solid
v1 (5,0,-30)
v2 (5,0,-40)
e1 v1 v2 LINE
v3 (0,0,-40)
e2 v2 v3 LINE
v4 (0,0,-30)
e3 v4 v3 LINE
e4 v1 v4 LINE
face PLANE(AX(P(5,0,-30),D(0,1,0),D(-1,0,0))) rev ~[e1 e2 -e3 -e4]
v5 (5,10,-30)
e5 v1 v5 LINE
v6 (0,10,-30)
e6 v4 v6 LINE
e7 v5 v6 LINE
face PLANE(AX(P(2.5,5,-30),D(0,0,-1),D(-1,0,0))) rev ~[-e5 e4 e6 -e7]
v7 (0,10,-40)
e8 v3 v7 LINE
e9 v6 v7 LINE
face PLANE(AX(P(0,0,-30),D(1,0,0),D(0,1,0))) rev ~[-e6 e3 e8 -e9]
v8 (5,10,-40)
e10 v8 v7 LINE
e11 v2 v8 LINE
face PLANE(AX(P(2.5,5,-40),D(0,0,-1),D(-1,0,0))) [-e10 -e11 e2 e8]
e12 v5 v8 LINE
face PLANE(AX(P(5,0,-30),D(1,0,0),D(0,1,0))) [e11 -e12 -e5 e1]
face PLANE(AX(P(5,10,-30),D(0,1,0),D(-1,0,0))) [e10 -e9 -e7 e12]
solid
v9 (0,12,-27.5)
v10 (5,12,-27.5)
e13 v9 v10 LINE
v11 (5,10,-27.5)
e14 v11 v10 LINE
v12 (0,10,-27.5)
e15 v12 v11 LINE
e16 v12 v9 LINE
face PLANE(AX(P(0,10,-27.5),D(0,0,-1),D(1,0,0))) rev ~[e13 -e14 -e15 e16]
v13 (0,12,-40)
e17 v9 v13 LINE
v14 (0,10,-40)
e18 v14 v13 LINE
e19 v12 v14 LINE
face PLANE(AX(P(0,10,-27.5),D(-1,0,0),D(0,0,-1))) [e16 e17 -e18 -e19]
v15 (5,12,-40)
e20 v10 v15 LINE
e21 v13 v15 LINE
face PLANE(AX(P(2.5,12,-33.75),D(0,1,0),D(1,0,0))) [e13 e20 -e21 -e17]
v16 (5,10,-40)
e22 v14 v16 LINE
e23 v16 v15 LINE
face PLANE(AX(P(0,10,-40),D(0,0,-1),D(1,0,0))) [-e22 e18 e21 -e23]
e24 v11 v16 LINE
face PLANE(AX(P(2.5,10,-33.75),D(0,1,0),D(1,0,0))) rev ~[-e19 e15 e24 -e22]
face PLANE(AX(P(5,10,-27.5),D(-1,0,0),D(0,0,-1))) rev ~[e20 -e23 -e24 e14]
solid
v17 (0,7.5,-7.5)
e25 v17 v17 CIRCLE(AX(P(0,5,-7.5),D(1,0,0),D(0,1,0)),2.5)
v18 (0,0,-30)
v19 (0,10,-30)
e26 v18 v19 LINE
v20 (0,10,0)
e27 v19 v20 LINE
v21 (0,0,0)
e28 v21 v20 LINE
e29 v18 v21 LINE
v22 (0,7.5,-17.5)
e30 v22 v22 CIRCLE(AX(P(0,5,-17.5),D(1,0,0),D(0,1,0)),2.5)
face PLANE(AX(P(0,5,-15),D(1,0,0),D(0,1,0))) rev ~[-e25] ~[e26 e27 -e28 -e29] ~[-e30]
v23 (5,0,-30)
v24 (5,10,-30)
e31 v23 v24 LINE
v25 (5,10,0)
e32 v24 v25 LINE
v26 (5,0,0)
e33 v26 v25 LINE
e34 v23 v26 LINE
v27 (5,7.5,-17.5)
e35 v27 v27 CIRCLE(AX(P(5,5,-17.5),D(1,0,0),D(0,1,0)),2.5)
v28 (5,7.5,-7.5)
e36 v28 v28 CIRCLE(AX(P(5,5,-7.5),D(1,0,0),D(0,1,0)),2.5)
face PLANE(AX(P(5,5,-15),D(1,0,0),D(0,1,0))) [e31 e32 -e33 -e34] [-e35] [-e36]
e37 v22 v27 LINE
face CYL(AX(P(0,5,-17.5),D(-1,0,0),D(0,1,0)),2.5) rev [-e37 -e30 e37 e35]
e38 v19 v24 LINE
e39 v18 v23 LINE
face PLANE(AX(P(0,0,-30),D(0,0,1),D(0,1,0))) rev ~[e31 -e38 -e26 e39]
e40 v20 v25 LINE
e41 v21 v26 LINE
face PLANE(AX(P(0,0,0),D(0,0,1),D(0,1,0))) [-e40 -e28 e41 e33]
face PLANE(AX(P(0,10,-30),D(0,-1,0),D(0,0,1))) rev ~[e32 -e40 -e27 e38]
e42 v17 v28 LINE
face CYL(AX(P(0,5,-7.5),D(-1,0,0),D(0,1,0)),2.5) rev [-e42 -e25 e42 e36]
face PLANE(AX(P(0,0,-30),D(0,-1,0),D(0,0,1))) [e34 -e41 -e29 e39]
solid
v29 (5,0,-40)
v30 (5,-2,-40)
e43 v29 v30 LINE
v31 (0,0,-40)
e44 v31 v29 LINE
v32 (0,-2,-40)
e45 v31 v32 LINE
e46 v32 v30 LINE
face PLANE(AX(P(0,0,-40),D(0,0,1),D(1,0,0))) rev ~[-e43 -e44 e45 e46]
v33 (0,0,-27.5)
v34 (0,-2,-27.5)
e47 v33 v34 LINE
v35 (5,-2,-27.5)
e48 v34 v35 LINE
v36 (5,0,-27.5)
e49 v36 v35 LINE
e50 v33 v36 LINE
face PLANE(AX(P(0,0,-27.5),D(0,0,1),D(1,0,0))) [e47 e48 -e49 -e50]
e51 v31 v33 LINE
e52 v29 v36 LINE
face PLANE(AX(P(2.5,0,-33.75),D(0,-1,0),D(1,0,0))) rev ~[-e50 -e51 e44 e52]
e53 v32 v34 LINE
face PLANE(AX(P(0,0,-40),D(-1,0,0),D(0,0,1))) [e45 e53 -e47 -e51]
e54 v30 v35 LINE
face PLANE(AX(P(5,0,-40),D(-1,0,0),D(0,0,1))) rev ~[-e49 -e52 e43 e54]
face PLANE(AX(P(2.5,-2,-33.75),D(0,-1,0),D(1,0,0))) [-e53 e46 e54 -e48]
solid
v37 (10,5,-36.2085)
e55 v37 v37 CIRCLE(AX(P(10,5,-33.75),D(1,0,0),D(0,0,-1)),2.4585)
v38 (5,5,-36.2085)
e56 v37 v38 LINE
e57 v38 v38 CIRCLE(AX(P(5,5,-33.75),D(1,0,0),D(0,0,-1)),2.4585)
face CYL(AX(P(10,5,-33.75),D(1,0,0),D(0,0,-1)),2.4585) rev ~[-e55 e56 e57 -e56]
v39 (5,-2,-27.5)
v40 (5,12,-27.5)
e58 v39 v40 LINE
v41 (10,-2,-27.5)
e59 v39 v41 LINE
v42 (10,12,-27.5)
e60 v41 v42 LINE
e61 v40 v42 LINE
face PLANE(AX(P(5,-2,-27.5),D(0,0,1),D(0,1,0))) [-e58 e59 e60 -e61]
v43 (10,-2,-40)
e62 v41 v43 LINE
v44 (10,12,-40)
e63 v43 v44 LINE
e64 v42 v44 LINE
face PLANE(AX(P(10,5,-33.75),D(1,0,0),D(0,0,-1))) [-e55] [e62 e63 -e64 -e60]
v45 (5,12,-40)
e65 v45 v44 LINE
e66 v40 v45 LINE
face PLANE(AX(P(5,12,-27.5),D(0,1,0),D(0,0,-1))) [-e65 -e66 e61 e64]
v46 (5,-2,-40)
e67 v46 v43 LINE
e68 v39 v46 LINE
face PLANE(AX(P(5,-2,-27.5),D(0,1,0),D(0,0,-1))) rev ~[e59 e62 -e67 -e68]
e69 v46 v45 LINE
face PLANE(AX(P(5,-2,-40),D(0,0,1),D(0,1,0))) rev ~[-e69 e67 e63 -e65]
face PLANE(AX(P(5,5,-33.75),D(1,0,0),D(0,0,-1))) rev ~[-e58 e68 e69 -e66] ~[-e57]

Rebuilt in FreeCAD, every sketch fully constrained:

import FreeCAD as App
import Part
import Sketcher
Q = App.Units.Quantity

doc = App.newDocument("Part")
body = doc.addObject("PartDesign::Body", "Body")

# Sketch on YZ plane
sketch1 = doc.addObject("Sketcher::SketchObject", "Sketch")
body.addObject(sketch1)
sketch1.AttachmentSupport = (doc.YZ_Plane, [""])
sketch1.MapMode = "FlatFace"
sketch1.addGeometry(Part.LineSegment(App.Vector(0, 0, 0), App.Vector(0, -30, 0)), False)
sketch1.addGeometry(Part.LineSegment(App.Vector(0, -30, 0), App.Vector(10, -30, 0)), False)
sketch1.addGeometry(Part.LineSegment(App.Vector(10, -30, 0), App.Vector(10, 0, 0)), False)
sketch1.addGeometry(Part.LineSegment(App.Vector(10, 0, 0), App.Vector(0, 0, 0)), False)
sketch1.addGeometry(Part.Circle(App.Vector(5, -17.5, 0), App.Vector(0, 0, 1), 2.5), False)
sketch1.addGeometry(Part.Circle(App.Vector(5, -7.5, 0), App.Vector(0, 0, 1), 2.5), False)
sketch1.addConstraint(Sketcher.Constraint("Coincident", 0, 2, 1, 1))
sketch1.addConstraint(Sketcher.Constraint("Coincident", 1, 2, 2, 1))
sketch1.addConstraint(Sketcher.Constraint("Coincident", 2, 2, 3, 1))
sketch1.addConstraint(Sketcher.Constraint("Coincident", 3, 2, 0, 1))
sketch1.addConstraint(Sketcher.Constraint("Vertical", 0))
sketch1.addConstraint(Sketcher.Constraint("Horizontal", 1))
sketch1.addConstraint(Sketcher.Constraint("Vertical", 2))
sketch1.addConstraint(Sketcher.Constraint("Horizontal", 3))
sketch1.addConstraint(Sketcher.Constraint("Coincident", 3, 2, -1, 1))
sketch1.addConstraint(Sketcher.Constraint("Equal", 4, 5))
sketch1.addConstraint(Sketcher.Constraint("Vertical", 4, 3, 5, 3))
sketch1.addConstraint(Sketcher.Constraint("Diameter", 4, Q("5 mm")))
sketch1.addConstraint(Sketcher.Constraint("DistanceX", 1, 1, 1, 2, Q("10 mm")))
sketch1.addConstraint(Sketcher.Constraint("DistanceY", 0, 2, 0, 1, Q("30 mm")))
sketch1.addConstraint(Sketcher.Constraint("DistanceX", -1, 1, 4, 3, Q("5 mm")))
sketch1.addConstraint(Sketcher.Constraint("DistanceY", 4, 3, 5, 3, Q("10 mm")))
sketch1.addConstraint(Sketcher.Constraint("DistanceY", 4, 3, -1, 1, Q("17.5 mm")))
pad1 = doc.addObject("PartDesign::Pad", "Pad")
body.addObject(pad1)
pad1.Profile = sketch1
pad1.Length = 5
body2 = doc.addObject("PartDesign::Body", "Body001")

# Sketch on XY plane
sketch2 = doc.addObject("Sketcher::SketchObject", "Sketch001")
body2.addObject(sketch2)
sketch2.AttachmentSupport = (doc.getObject("XY_Plane001"), [""])
sketch2.MapMode = "FlatFace"
sketch2.AttachmentOffset = App.Placement(App.Vector(0, 0, -30), App.Rotation())
sketch2.addGeometry(Part.LineSegment(App.Vector(5, 10, 0), App.Vector(5, 0, 0)), False)
sketch2.addGeometry(Part.LineSegment(App.Vector(5, 0, 0), App.Vector(0, 0, 0)), False)
sketch2.addGeometry(Part.LineSegment(App.Vector(0, 0, 0), App.Vector(0, 10, 0)), False)
sketch2.addGeometry(Part.LineSegment(App.Vector(0, 10, 0), App.Vector(5, 10, 0)), False)
sketch2.addConstraint(Sketcher.Constraint("Coincident", 0, 2, 1, 1))
sketch2.addConstraint(Sketcher.Constraint("Coincident", 1, 2, 2, 1))
sketch2.addConstraint(Sketcher.Constraint("Coincident", 2, 2, 3, 1))
sketch2.addConstraint(Sketcher.Constraint("Coincident", 3, 2, 0, 1))
sketch2.addConstraint(Sketcher.Constraint("Vertical", 0))
sketch2.addConstraint(Sketcher.Constraint("Horizontal", 1))
sketch2.addConstraint(Sketcher.Constraint("Vertical", 2))
sketch2.addConstraint(Sketcher.Constraint("Horizontal", 3))
sketch2.addConstraint(Sketcher.Constraint("Coincident", 1, 2, -1, 1))
sketch2.addConstraint(Sketcher.Constraint("DistanceX", 1, 2, 1, 1, Q("5 mm")))
sketch2.addConstraint(Sketcher.Constraint("DistanceY", 0, 2, 0, 1, Q("10 mm")))
pad2 = doc.addObject("PartDesign::Pad", "Pad001")
body2.addObject(pad2)
pad2.Profile = sketch2
pad2.Length = 10
pad2.Reversed = True
body3 = doc.addObject("PartDesign::Body", "Body002")

# Sketch on XZ plane
sketch3 = doc.addObject("Sketcher::SketchObject", "Sketch002")
body3.addObject(sketch3)
sketch3.AttachmentSupport = (doc.getObject("XZ_Plane002"), [""])
sketch3.MapMode = "FlatFace"
sketch3.AttachmentOffset = App.Placement(App.Vector(0, 0, -10), App.Rotation())
sketch3.addGeometry(Part.LineSegment(App.Vector(0, -40, 0), App.Vector(0, -28, 0)), False)
sketch3.addGeometry(Part.LineSegment(App.Vector(0, -28, 0), App.Vector(5, -28, 0)), False)
sketch3.addGeometry(Part.LineSegment(App.Vector(5, -28, 0), App.Vector(5, -40, 0)), False)
sketch3.addGeometry(Part.LineSegment(App.Vector(5, -40, 0), App.Vector(0, -40, 0)), False)
sketch3.addConstraint(Sketcher.Constraint("Coincident", 0, 2, 1, 1))
sketch3.addConstraint(Sketcher.Constraint("Coincident", 1, 2, 2, 1))
sketch3.addConstraint(Sketcher.Constraint("Coincident", 2, 2, 3, 1))
sketch3.addConstraint(Sketcher.Constraint("Coincident", 3, 2, 0, 1))
sketch3.addConstraint(Sketcher.Constraint("Vertical", 0))
sketch3.addConstraint(Sketcher.Constraint("Horizontal", 1))
sketch3.addConstraint(Sketcher.Constraint("Vertical", 2))
sketch3.addConstraint(Sketcher.Constraint("Horizontal", 3))
sketch3.addConstraint(Sketcher.Constraint("PointOnObject", 0, 2, -2))
sketch3.addConstraint(Sketcher.Constraint("DistanceX", 1, 1, 1, 2, Q("5 mm")))
sketch3.addConstraint(Sketcher.Constraint("DistanceY", 0, 1, 0, 2, Q("12.5 mm")))
sketch3.addConstraint(Sketcher.Constraint("DistanceY", 2, 2, -1, 1, Q("40 mm")))
pad3 = doc.addObject("PartDesign::Pad", "Pad002")
body3.addObject(pad3)
pad3.Profile = sketch3
pad3.Length = 2
pad3.Reversed = True
body4 = doc.addObject("PartDesign::Body", "Body003")

# Sketch on XZ plane
sketch4 = doc.addObject("Sketcher::SketchObject", "Sketch003")
body4.addObject(sketch4)
sketch4.AttachmentSupport = (doc.getObject("XZ_Plane003"), [""])
sketch4.MapMode = "FlatFace"
sketch4.addGeometry(Part.LineSegment(App.Vector(0, -28, 0), App.Vector(0, -40, 0)), False)
sketch4.addGeometry(Part.LineSegment(App.Vector(0, -40, 0), App.Vector(5, -40, 0)), False)
sketch4.addGeometry(Part.LineSegment(App.Vector(5, -40, 0), App.Vector(5, -28, 0)), False)
sketch4.addGeometry(Part.LineSegment(App.Vector(5, -28, 0), App.Vector(0, -28, 0)), False)
sketch4.addConstraint(Sketcher.Constraint("Coincident", 0, 2, 1, 1))
sketch4.addConstraint(Sketcher.Constraint("Coincident", 1, 2, 2, 1))
sketch4.addConstraint(Sketcher.Constraint("Coincident", 2, 2, 3, 1))
sketch4.addConstraint(Sketcher.Constraint("Coincident", 3, 2, 0, 1))
sketch4.addConstraint(Sketcher.Constraint("Vertical", 0))
sketch4.addConstraint(Sketcher.Constraint("Horizontal", 1))
sketch4.addConstraint(Sketcher.Constraint("Vertical", 2))
sketch4.addConstraint(Sketcher.Constraint("Horizontal", 3))
sketch4.addConstraint(Sketcher.Constraint("PointOnObject", 0, 2, -2))
sketch4.addConstraint(Sketcher.Constraint("DistanceX", 1, 1, 1, 2, Q("5 mm")))
sketch4.addConstraint(Sketcher.Constraint("DistanceY", 0, 2, 0, 1, Q("12.5 mm")))
sketch4.addConstraint(Sketcher.Constraint("DistanceY", 0, 2, -1, 1, Q("40 mm")))
pad4 = doc.addObject("PartDesign::Pad", "Pad003")
body4.addObject(pad4)
pad4.Profile = sketch4
pad4.Length = 2
body5 = doc.addObject("PartDesign::Body", "Body004")

# Sketch on YZ plane
sketch5 = doc.addObject("Sketcher::SketchObject", "Sketch004")
body5.addObject(sketch5)
sketch5.AttachmentSupport = (doc.getObject("YZ_Plane004"), [""])
sketch5.MapMode = "FlatFace"
sketch5.AttachmentOffset = App.Placement(App.Vector(0, 0, 5), App.Rotation())
sketch5.addGeometry(Part.LineSegment(App.Vector(12, -28, 0), App.Vector(-2, -28, 0)), False)
sketch5.addGeometry(Part.LineSegment(App.Vector(-2, -28, 0), App.Vector(-2, -40, 0)), False)
sketch5.addGeometry(Part.LineSegment(App.Vector(-2, -40, 0), App.Vector(12, -40, 0)), False)
sketch5.addGeometry(Part.LineSegment(App.Vector(12, -40, 0), App.Vector(12, -28, 0)), False)
sketch5.addConstraint(Sketcher.Constraint("Coincident", 0, 2, 1, 1))
sketch5.addConstraint(Sketcher.Constraint("Coincident", 1, 2, 2, 1))
sketch5.addConstraint(Sketcher.Constraint("Coincident", 2, 2, 3, 1))
sketch5.addConstraint(Sketcher.Constraint("Coincident", 3, 2, 0, 1))
sketch5.addConstraint(Sketcher.Constraint("Horizontal", 0))
sketch5.addConstraint(Sketcher.Constraint("Vertical", 1))
sketch5.addConstraint(Sketcher.Constraint("Horizontal", 2))
sketch5.addConstraint(Sketcher.Constraint("Vertical", 3))
sketch5.addConstraint(Sketcher.Constraint("DistanceX", 0, 2, 0, 1, Q("14 mm")))
sketch5.addConstraint(Sketcher.Constraint("DistanceY", 1, 2, 1, 1, Q("12.5 mm")))
sketch5.addConstraint(Sketcher.Constraint("DistanceX", 0, 2, -1, 1, Q("2 mm")))
sketch5.addConstraint(Sketcher.Constraint("DistanceY", 1, 2, -1, 1, Q("40 mm")))
pad5 = doc.addObject("PartDesign::Pad", "Pad004")
body5.addObject(pad5)
pad5.Profile = sketch5
pad5.Length = 5

# Sketch on YZ plane
sketch6 = doc.addObject("Sketcher::SketchObject", "Sketch005")
body5.addObject(sketch6)
sketch6.AttachmentSupport = (doc.getObject("YZ_Plane004"), [""])
sketch6.MapMode = "FlatFace"
sketch6.AttachmentOffset = App.Placement(App.Vector(0, 0, 10), App.Rotation())
sketch6.addGeometry(Part.Circle(App.Vector(5, -33.8, 0), App.Vector(0, 0, 1), 2.5), False)
sketch6.addConstraint(Sketcher.Constraint("Diameter", 0, Q("4.917 mm")))
sketch6.addConstraint(Sketcher.Constraint("DistanceX", -1, 1, 0, 3, Q("5 mm")))
sketch6.addConstraint(Sketcher.Constraint("DistanceY", 0, 3, -1, 1, Q("33.75 mm")))
pocket1 = doc.addObject("PartDesign::Pocket", "Pocket")
body5.addObject(pocket1)
pocket1.Profile = sketch6
pocket1.Length = 9.477216

doc.recompute()
